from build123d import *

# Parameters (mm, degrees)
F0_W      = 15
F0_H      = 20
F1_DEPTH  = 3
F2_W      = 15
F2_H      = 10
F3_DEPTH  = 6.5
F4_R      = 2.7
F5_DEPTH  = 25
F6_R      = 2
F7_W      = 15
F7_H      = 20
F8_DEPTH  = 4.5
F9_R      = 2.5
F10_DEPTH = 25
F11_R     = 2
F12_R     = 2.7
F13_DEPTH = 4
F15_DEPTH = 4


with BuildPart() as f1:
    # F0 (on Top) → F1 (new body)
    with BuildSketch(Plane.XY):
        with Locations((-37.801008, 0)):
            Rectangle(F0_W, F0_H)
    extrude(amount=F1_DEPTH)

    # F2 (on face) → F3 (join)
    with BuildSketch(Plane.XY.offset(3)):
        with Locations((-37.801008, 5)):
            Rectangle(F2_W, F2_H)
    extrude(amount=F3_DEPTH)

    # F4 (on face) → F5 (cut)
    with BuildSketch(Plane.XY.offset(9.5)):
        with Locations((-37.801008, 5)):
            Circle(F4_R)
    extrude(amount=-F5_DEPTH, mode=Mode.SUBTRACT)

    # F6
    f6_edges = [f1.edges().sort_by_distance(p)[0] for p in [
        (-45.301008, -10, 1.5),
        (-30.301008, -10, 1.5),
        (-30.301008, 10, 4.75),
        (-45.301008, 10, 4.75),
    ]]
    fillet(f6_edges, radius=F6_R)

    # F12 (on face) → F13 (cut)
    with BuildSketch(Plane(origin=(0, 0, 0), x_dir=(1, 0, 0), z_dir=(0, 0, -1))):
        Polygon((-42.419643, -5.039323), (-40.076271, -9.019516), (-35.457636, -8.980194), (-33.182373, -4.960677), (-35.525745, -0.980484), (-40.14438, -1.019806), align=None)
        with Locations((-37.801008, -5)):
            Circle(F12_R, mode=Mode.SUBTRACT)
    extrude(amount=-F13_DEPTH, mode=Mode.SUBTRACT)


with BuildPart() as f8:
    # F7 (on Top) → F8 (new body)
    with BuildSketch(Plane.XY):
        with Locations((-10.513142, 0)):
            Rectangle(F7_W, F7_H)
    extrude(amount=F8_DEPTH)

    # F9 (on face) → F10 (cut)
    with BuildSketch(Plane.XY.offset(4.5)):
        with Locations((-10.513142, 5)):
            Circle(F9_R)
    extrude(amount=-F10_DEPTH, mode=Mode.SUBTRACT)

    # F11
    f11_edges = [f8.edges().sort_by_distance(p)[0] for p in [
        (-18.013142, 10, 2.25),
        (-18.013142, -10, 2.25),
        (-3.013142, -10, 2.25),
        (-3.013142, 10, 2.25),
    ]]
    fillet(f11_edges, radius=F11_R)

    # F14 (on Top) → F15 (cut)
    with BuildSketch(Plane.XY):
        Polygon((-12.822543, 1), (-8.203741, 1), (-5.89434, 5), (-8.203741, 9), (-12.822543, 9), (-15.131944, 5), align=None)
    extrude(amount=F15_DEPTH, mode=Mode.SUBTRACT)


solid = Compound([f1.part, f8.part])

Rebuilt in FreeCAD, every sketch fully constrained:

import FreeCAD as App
import Part
import Sketcher
Q = App.Units.Quantity


def edges_at(feature, points):
    """Names of the edges that pass closest to the given points."""
    edges = feature.Shape.Edges
    near = lambda p: min(range(len(edges)), key=lambda i: edges[i].distToShape(Part.Vertex(*p))[0])
    return sorted({f"Edge{near(p) + 1}" for p in points})

doc = App.newDocument("Part")
body = doc.addObject("PartDesign::Body", "Body")

sketch1 = body.newObject("Sketcher::SketchObject", "Sketch")
sketch1.AttachmentSupport = (doc.getObject("XY_Plane"), [""])
sketch1.MapMode = "FlatFace"
sketch1.addGeometry([
    Part.LineSegment(App.Vector(-45, 10, 0), App.Vector(-45, -10, 0)),
    Part.LineSegment(App.Vector(-45, -10, 0), App.Vector(-30, -10, 0)),
    Part.LineSegment(App.Vector(-30, -10, 0), App.Vector(-30, 10, 0)),
    Part.LineSegment(App.Vector(-30, 10, 0), App.Vector(-45, 10, 0)),
], False)
sketch1.addConstraint([
    Sketcher.Constraint("Coincident", 0, 2, 1, 1),
    Sketcher.Constraint("Coincident", 1, 2, 2, 1),
    Sketcher.Constraint("Coincident", 2, 2, 3, 1),
    Sketcher.Constraint("Coincident", 3, 2, 0, 1),
    Sketcher.Constraint("Vertical", 0),
    Sketcher.Constraint("Horizontal", 1),
    Sketcher.Constraint("Vertical", 2),
    Sketcher.Constraint("Horizontal", 3),
    Sketcher.Constraint("DistanceX", 1, 1, 1, 2, 15.0),
    Sketcher.Constraint("DistanceY", 0, 2, 0, 1, 20.0),
    Sketcher.Constraint("DistanceY", 0, 2, -1, 1, 10.0),
    Sketcher.Constraint("DistanceX", 0, 2, -1, 1, 45.301008),
])
pad1 = body.newObject("PartDesign::Pad", "Pad")
pad1.Profile = sketch1
pad1.Length = 3

sketch2 = body.newObject("Sketcher::SketchObject", "Sketch001")
sketch2.AttachmentSupport = (doc.getObject("XY_Plane"), [""])
sketch2.MapMode = "FlatFace"
sketch2.AttachmentOffset = App.Placement(App.Vector(0, 0, 3), App.Rotation())
sketch2.addGeometry([
    Part.LineSegment(App.Vector(-45, 10, 0), App.Vector(-45, 0, 0)),
    Part.LineSegment(App.Vector(-45, 0, 0), App.Vector(-30, 0, 0)),
    Part.LineSegment(App.Vector(-30, 0, 0), App.Vector(-30, 10, 0)),
    Part.LineSegment(App.Vector(-30, 10, 0), App.Vector(-45, 10, 0)),
], False)
sketch2.addConstraint([
    Sketcher.Constraint("Coincident", 0, 2, 1, 1),
    Sketcher.Constraint("Coincident", 1, 2, 2, 1),
    Sketcher.Constraint("Coincident", 2, 2, 3, 1),
    Sketcher.Constraint("Coincident", 3, 2, 0, 1),
    Sketcher.Constraint("Vertical", 0),
    Sketcher.Constraint("Horizontal", 1),
    Sketcher.Constraint("Vertical", 2),
    Sketcher.Constraint("Horizontal", 3),
    Sketcher.Constraint("PointOnObject", 0, 2, -1),
    Sketcher.Constraint("DistanceX", 1, 1, 1, 2, 15.0),
    Sketcher.Constraint("DistanceY", 0, 2, 0, 1, 10.0),
    Sketcher.Constraint("DistanceX", 0, 2, -1, 1, 45.301008),
])
pad2 = body.newObject("PartDesign::Pad", "Pad001")
pad2.Profile = sketch2
pad2.Length = 6.5

sketch3 = body.newObject("Sketcher::SketchObject", "Sketch002")
sketch3.AttachmentSupport = (doc.getObject("XY_Plane"), [""])
sketch3.MapMode = "FlatFace"
sketch3.AttachmentOffset = App.Placement(App.Vector(0, 0, 9.5), App.Rotation())
sketch3.addGeometry(Part.Circle(App.Vector(-37.8, 5, 0), App.Vector(0, 0, 1), 2.7), False)
sketch3.addConstraint([
    Sketcher.Constraint("Diameter", 0, 5.4),
    Sketcher.Constraint("DistanceY", -1, 1, 0, 3, 5.0),
    Sketcher.Constraint("DistanceX", 0, 3, -1, 1, 37.801008),
])
pocket1 = body.newObject("PartDesign::Pocket", "Pocket")
pocket1.Profile = sketch3
pocket1.Length = 25
doc.recompute()

fillet = body.newObject("PartDesign::Fillet", "Fillet")
fillet.Base = (pocket1, edges_at(pocket1, [
    (-45.301, -10, 1.5),
    (-30.301, -10, 1.5),
    (-30.301, 10, 4.75),
    (-45.301, 10, 4.75),
]))
fillet.Radius = 2

sketch4 = body.newObject("Sketcher::SketchObject", "Sketch003")
sketch4.AttachmentSupport = (doc.getObject("XY_Plane"), [""])
sketch4.MapMode = "FlatFace"
sketch4.addGeometry([
    Part.LineSegment(App.Vector(-42.4, 5, 0), App.Vector(-40.1, 9, 0)),
    Part.LineSegment(App.Vector(-40.1, 9, 0), App.Vector(-35.5, 9, 0)),
    Part.LineSegment(App.Vector(-35.5, 9, 0), App.Vector(-33.2, 5, 0)),
    Part.LineSegment(App.Vector(-33.2, 5, 0), App.Vector(-35.5, 1, 0)),
    Part.LineSegment(App.Vector(-35.5, 1, 0), App.Vector(-40.1, 1, 0)),
    Part.LineSegment(App.Vector(-40.1, 1, 0), App.Vector(-42.4, 5, 0)),
    Part.Circle(App.Vector(-37.8, 5, 0), App.Vector(0, 0, 1), 2.7),
], False)
sketch4.addConstraint([
    Sketcher.Constraint("Coincident", 0, 2, 1, 1),
    Sketcher.Constraint("Coincident", 1, 2, 2, 1),
    Sketcher.Constraint("Coincident", 2, 2, 3, 1),
    Sketcher.Constraint("Coincident", 3, 2, 4, 1),
    Sketcher.Constraint("Coincident", 4, 2, 5, 1),
    Sketcher.Constraint("Coincident", 5, 2, 0, 1),
    Sketcher.Constraint("Parallel", 0, 3),
    Sketcher.Constraint("Parallel", 1, 4),
    Sketcher.Constraint("Parallel", 2, 5),
    Sketcher.Constraint("Equal", 0, 1),
    Sketcher.Constraint("Equal", 1, 2),
    Sketcher.Constraint("Equal", 2, 3),
    Sketcher.Constraint("Diameter", 6, 5.4),
    Sketcher.Constraint("DistanceY", -1, 1, 6, 3, 5.0),
    Sketcher.Constraint("Distance", 0, 4.618802),
    Sketcher.Constraint("DistanceX", 6, 3, -1, 1, 37.801008),
    Sketcher.Constraint("DistanceX", 0, 2, -1, 1, 40.076271),
    Sketcher.Constraint("DistanceX", 4, 2, -1, 1, 40.14438),
    Sketcher.Constraint("DistanceY", 2, 2, 0, 2, 4.058839),
    Sketcher.Constraint("DistanceY", 3, 2, 1, 2, 7.99971),
    Sketcher.Constraint("DistanceY", -1, 1, 0, 2, 9.019516),
])
pocket2 = body.newObject("PartDesign::Pocket", "Pocket001")
pocket2.Profile = sketch4
pocket2.Length = 4
pocket2.Reversed = True
body2 = doc.addObject("PartDesign::Body", "Body001")

sketch5 = body2.newObject("Sketcher::SketchObject", "Sketch004")
sketch5.AttachmentSupport = (doc.getObject("XY_Plane001"), [""])
sketch5.MapMode = "FlatFace"
sketch5.addGeometry([
    Part.LineSegment(App.Vector(-18, 10, 0), App.Vector(-18, -10, 0)),
    Part.LineSegment(App.Vector(-18, -10, 0), App.Vector(-3, -10, 0)),
    Part.LineSegment(App.Vector(-3, -10, 0), App.Vector(-3, 10, 0)),
    Part.LineSegment(App.Vector(-3, 10, 0), App.Vector(-18, 10, 0)),
], False)
sketch5.addConstraint([
    Sketcher.Constraint("Coincident", 0, 2, 1, 1),
    Sketcher.Constraint("Coincident", 1, 2, 2, 1),
    Sketcher.Constraint("Coincident", 2, 2, 3, 1),
    Sketcher.Constraint("Coincident", 3, 2, 0, 1),
    Sketcher.Constraint("Vertical", 0),
    Sketcher.Constraint("Horizontal", 1),
    Sketcher.Constraint("Vertical", 2),
    Sketcher.Constraint("Horizontal", 3),
    Sketcher.Constraint("DistanceX", 1, 1, 1, 2, 15.0),
    Sketcher.Constraint("DistanceY", 0, 2, 0, 1, 20.0),
    Sketcher.Constraint("DistanceY", 0, 2, -1, 1, 10.0),
    Sketcher.Constraint("DistanceX", 0, 2, -1, 1, 18.013142),
])
pad3 = body2.newObject("PartDesign::Pad", "Pad002")
pad3.Profile = sketch5
pad3.Length = 4.5

sketch6 = body2.newObject("Sketcher::SketchObject", "Sketch005")
sketch6.AttachmentSupport = (doc.getObject("XY_Plane001"), [""])
sketch6.MapMode = "FlatFace"
sketch6.AttachmentOffset = App.Placement(App.Vector(0, 0, 4.5), App.Rotation())
sketch6.addGeometry(Part.Circle(App.Vector(-10.5, 5, 0), App.Vector(0, 0, 1), 2.5), False)
sketch6.addConstraint([
    Sketcher.Constraint("Diameter", 0, 5.0),
    Sketcher.Constraint("DistanceY", -1, 1, 0, 3, 5.0),
    Sketcher.Constraint("DistanceX", 0, 3, -1, 1, 10.513142),
])
pocket3 = body2.newObject("PartDesign::Pocket", "Pocket002")
pocket3.Profile = sketch6
pocket3.Length = 25
doc.recompute()

fillet2 = body2.newObject("PartDesign::Fillet", "Fillet001")
fillet2.Base = (pocket3, edges_at(pocket3, [
    (-18.013, 10, 2.25),
    (-18.013, -10, 2.25),
    (-3.013, -10, 2.25),
    (-3.013, 10, 2.25),
]))
fillet2.Radius = 2

sketch7 = body2.newObject("Sketcher::SketchObject", "Sketch006")
sketch7.AttachmentSupport = (doc.getObject("XY_Plane001"), [""])
sketch7.MapMode = "FlatFace"
sketch7.addGeometry([
    Part.LineSegment(App.Vector(-12.8, 1, 0), App.Vector(-8.2, 1, 0)),
    Part.LineSegment(App.Vector(-8.2, 1, 0), App.Vector(-5.9, 5, 0)),
    Part.LineSegment(App.Vector(-5.9, 5, 0), App.Vector(-8.2, 9, 0)),
    Part.LineSegment(App.Vector(-8.2, 9, 0), App.Vector(-12.8, 9, 0)),
    Part.LineSegment(App.Vector(-12.8, 9, 0), App.Vector(-15.1, 5, 0)),
    Part.LineSegment(App.Vector(-15.1, 5, 0), App.Vector(-12.8, 1, 0)),
], False)
sketch7.addConstraint([
    Sketcher.Constraint("Coincident", 0, 2, 1, 1),
    Sketcher.Constraint("Coincident", 1, 2, 2, 1),
    Sketcher.Constraint("Coincident", 2, 2, 3, 1),
    Sketcher.Constraint("Coincident", 3, 2, 4, 1),
    Sketcher.Constraint("Coincident", 4, 2, 5, 1),
    Sketcher.Constraint("Coincident", 5, 2, 0, 1),
    Sketcher.Constraint("Horizontal", 0),
    Sketcher.Constraint("Horizontal", 3),
    Sketcher.Constraint("Parallel", 1, 4),
    Sketcher.Constraint("Parallel", 2, 5),
    Sketcher.Constraint("Horizontal", 1, 2, 4, 2),
    Sketcher.Constraint("Vertical", 0, 2, 2, 2),
    Sketcher.Constraint("Vertical", 3, 2, 5, 2),
    Sketcher.Constraint("Angle", 1, Q("60.000001 deg")),
    Sketcher.Constraint("DistanceY", -1, 1, 0, 2, 1.0),
    Sketcher.Constraint("DistanceY", -1, 1, 1, 2, 5.0),
    Sketcher.Constraint("DistanceX", 0, 1, 0, 2, 4.618802),
    Sketcher.Constraint("DistanceX", 0, 2, -1, 1, 8.203741),
])
pocket4 = body2.newObject("PartDesign::Pocket", "Pocket003")
pocket4.Profile = sketch7
pocket4.Length = 4
pocket4.Reversed = True

doc.recompute()
